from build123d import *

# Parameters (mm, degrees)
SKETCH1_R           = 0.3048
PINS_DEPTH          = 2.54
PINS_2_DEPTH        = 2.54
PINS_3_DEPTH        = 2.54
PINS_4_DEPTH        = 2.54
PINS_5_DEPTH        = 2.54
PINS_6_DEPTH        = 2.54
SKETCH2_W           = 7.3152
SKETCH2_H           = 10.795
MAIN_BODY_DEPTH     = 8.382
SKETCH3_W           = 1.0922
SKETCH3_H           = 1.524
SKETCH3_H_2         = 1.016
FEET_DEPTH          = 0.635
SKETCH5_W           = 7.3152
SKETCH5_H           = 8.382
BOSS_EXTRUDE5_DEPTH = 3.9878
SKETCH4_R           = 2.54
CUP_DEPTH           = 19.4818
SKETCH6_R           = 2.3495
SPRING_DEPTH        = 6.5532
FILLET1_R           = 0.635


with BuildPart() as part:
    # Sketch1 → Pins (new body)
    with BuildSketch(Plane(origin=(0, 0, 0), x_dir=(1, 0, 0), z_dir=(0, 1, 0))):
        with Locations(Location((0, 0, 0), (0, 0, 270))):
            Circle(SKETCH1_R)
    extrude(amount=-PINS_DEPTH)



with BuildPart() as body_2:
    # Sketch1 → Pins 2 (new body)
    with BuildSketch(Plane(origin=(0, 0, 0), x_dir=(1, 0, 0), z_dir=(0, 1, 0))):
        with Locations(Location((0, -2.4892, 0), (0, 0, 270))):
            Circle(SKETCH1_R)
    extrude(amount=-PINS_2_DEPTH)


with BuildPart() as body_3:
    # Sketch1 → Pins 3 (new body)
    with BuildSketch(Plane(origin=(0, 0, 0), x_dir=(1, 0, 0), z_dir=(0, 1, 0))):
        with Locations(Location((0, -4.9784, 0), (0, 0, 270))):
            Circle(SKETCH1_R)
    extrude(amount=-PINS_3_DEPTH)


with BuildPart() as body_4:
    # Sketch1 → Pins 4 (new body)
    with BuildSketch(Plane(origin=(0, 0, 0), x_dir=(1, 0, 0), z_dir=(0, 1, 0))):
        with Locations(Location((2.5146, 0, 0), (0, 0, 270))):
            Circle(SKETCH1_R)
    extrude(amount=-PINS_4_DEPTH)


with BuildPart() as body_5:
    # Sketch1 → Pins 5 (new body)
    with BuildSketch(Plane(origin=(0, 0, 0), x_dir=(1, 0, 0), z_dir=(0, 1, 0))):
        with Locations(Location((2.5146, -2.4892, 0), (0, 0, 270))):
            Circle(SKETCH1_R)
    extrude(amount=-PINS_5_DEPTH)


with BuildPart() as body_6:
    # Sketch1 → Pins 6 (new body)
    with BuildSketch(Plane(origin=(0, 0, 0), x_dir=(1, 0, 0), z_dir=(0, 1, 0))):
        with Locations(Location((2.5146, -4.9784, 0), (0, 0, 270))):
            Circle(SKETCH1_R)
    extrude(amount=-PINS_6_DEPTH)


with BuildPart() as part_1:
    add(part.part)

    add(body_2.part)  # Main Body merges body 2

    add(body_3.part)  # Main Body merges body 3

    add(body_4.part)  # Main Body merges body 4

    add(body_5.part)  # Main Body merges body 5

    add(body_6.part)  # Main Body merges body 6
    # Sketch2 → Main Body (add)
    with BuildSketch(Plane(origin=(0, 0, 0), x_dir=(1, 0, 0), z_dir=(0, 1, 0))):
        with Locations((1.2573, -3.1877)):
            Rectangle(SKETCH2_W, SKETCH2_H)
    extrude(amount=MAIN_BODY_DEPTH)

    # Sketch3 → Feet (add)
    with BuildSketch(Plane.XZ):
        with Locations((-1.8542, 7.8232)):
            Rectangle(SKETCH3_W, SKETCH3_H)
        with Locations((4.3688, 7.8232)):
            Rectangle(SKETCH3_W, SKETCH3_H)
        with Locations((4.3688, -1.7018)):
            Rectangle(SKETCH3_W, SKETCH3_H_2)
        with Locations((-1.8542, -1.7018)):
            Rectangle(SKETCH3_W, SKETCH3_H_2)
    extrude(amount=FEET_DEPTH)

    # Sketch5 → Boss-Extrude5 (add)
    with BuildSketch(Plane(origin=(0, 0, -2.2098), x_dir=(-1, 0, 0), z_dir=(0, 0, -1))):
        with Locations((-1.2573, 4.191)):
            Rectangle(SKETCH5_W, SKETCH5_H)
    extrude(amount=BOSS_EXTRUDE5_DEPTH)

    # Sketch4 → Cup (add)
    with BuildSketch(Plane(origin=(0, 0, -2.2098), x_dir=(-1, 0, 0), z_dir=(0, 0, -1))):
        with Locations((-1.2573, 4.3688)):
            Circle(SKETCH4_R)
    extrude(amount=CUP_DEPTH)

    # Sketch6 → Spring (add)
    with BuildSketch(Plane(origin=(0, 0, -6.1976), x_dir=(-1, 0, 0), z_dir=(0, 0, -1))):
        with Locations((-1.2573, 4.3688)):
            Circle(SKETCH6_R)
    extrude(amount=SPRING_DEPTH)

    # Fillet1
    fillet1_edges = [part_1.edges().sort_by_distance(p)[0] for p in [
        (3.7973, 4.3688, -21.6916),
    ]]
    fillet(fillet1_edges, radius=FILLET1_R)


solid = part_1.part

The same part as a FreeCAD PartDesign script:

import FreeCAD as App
import Part
import Sketcher
from FreeCAD import Vector
Q = App.Units.Quantity


def edges_at(feature, points):
    """Names of the edges that pass closest to the given points."""
    edges = feature.Shape.Edges
    near = lambda p: min(range(len(edges)), key=lambda i: edges[i].distToShape(Part.Vertex(*p))[0])
    return sorted({f"Edge{near(p) + 1}" for p in points})


def add_polygon(sketch, points):
    """Adds a closed chain of lines whose ends are joined by coincident constraints."""
    first, n = sketch.GeometryCount, len(points)
    for a, b in zip(points, points[1:] + points[:1]):
        sketch.addGeometry(Part.LineSegment(App.Vector(*a, 0), App.Vector(*b, 0)), False)
    for i in range(n):
        sketch.addConstraint(Sketcher.Constraint("Coincident", first + i, 2, first + (i + 1) % n, 1))

doc = App.newDocument("Part")
body = doc.addObject("PartDesign::Body", "Body")

# Sketch on XZ plane
sketch1 = body.newObject("Sketcher::SketchObject", "Sketch")
sketch1.AttachmentSupport = (doc.getObject("XZ_Plane"), [""])
sketch1.MapMode = "FlatFace"
sketch1.addGeometry(Part.Circle(Vector(0, 0, 0), Vector(0, 0, 1), 0.3048), False)
sketch1.addConstraint(Sketcher.Constraint("Coincident", 0, 3, -1, 1))
sketch1.addConstraint(Sketcher.Constraint("Diameter", 0, Q("0.024 in")))
pad1 = body.newObject("PartDesign::Pad", "Pad")
pad1.Profile = sketch1
pad1.Length = Q("0.1 in")
body2 = doc.addObject("PartDesign::Body", "Body001")

# Sketch on XZ plane
sketch2 = body2.newObject("Sketcher::SketchObject", "Sketch001")
sketch2.AttachmentSupport = (doc.getObject("XZ_Plane001"), [""])
sketch2.MapMode = "FlatFace"
sketch2.addGeometry(Part.Circle(Vector(0, 2.4892, 0), Vector(0, 0, 1), 0.3048), False)
sketch2.addConstraint(Sketcher.Constraint("PointOnObject", 0, 3, -2))
sketch2.addConstraint(Sketcher.Constraint("Diameter", 0, Q("0.024 in")))
sketch2.addConstraint(Sketcher.Constraint("DistanceY", -1, 1, 0, 3, Q("0.098 in")))
pad2 = body2.newObject("PartDesign::Pad", "Pad001")
pad2.Profile = sketch2
pad2.Length = Q("0.1 in")
body3 = doc.addObject("PartDesign::Body", "Body002")

# Sketch on XZ plane
sketch3 = body3.newObject("Sketcher::SketchObject", "Sketch002")
sketch3.AttachmentSupport = (doc.getObject("XZ_Plane002"), [""])
sketch3.MapMode = "FlatFace"
sketch3.addGeometry(Part.Circle(Vector(0, 4.9784, 0), Vector(0, 0, 1), 0.3048), False)
sketch3.addConstraint(Sketcher.Constraint("PointOnObject", 0, 3, -2))
sketch3.addConstraint(Sketcher.Constraint("Diameter", 0, Q("0.024 in")))
sketch3.addConstraint(Sketcher.Constraint("DistanceY", -1, 1, 0, 3, Q("0.196 in")))
pad3 = body3.newObject("PartDesign::Pad", "Pad002")
pad3.Profile = sketch3
pad3.Length = Q("0.1 in")
body4 = doc.addObject("PartDesign::Body", "Body003")

# Sketch on XZ plane
sketch4 = body4.newObject("Sketcher::SketchObject", "Sketch003")
sketch4.AttachmentSupport = (doc.getObject("XZ_Plane003"), [""])
sketch4.MapMode = "FlatFace"
sketch4.addGeometry(Part.Circle(Vector(2.5146, 0, 0), Vector(0, 0, 1), 0.3048), False)
sketch4.addConstraint(Sketcher.Constraint("PointOnObject", 0, 3, -1))
sketch4.addConstraint(Sketcher.Constraint("Diameter", 0, Q("0.024 in")))
sketch4.addConstraint(Sketcher.Constraint("DistanceX", -1, 1, 0, 3, Q("0.099 in")))
pad4 = body4.newObject("PartDesign::Pad", "Pad003")
pad4.Profile = sketch4
pad4.Length = Q("0.1 in")
body5 = doc.addObject("PartDesign::Body", "Body004")

# Sketch on XZ plane
sketch5 = body5.newObject("Sketcher::SketchObject", "Sketch004")
sketch5.AttachmentSupport = (doc.getObject("XZ_Plane004"), [""])
sketch5.MapMode = "FlatFace"
sketch5.addGeometry(Part.Circle(Vector(2.5146, 2.4892, 0), Vector(0, 0, 1), 0.3048), False)
sketch5.addConstraint(Sketcher.Constraint("Diameter", 0, Q("0.024 in")))
sketch5.addConstraint(Sketcher.Constraint("DistanceX", -1, 1, 0, 3, Q("0.099 in")))
sketch5.addConstraint(Sketcher.Constraint("DistanceY", -1, 1, 0, 3, Q("0.098 in")))
pad5 = body5.newObject("PartDesign::Pad", "Pad004")
pad5.Profile = sketch5
pad5.Length = Q("0.1 in")
body6 = doc.addObject("PartDesign::Body", "Body005")

# Sketch on XZ plane
sketch6 = body6.newObject("Sketcher::SketchObject", "Sketch005")
sketch6.AttachmentSupport = (doc.getObject("XZ_Plane005"), [""])
sketch6.MapMode = "FlatFace"
sketch6.addGeometry(Part.Circle(Vector(2.5146, 4.9784, 0), Vector(0, 0, 1), 0.3048), False)
sketch6.addConstraint(Sketcher.Constraint("Diameter", 0, Q("0.024 in")))
sketch6.addConstraint(Sketcher.Constraint("DistanceX", -1, 1, 0, 3, Q("0.099 in")))
sketch6.addConstraint(Sketcher.Constraint("DistanceY", -1, 1, 0, 3, Q("0.196 in")))
pad6 = body6.newObject("PartDesign::Pad", "Pad005")
pad6.Profile = sketch6
pad6.Length = Q("0.1 in")
body.AllowCompound = True
doc.recompute()

boolean = body.newObject("PartDesign::Boolean", "Boolean")
boolean.Type = "Fuse"
boolean.addObjects([body2])
doc.recompute()

boolean2 = body.newObject("PartDesign::Boolean", "Boolean001")
boolean2.Type = "Fuse"
boolean2.addObjects([body3])
doc.recompute()

boolean3 = body.newObject("PartDesign::Boolean", "Boolean002")
boolean3.Type = "Fuse"
boolean3.addObjects([body4])
doc.recompute()

boolean4 = body.newObject("PartDesign::Boolean", "Boolean003")
boolean4.Type = "Fuse"
boolean4.addObjects([body5])
doc.recompute()

boolean5 = body.newObject("PartDesign::Boolean", "Boolean004")
boolean5.Type = "Fuse"
boolean5.addObjects([body6])

# Sketch on XZ plane
sketch7 = body.newObject("Sketcher::SketchObject", "Sketch006")
sketch7.AttachmentSupport = (doc.getObject("XZ_Plane"), [""])
sketch7.MapMode = "FlatFace"
add_polygon(sketch7, [(-2.4003, -2.2098), (-2.4003, 8.5852), (4.9149, 8.5852), (4.9149, -2.2098)])  # lines 0-3
sketch7.addConstraint(Sketcher.Constraint("Vertical", 0))
sketch7.addConstraint(Sketcher.Constraint("Horizontal", 1))
sketch7.addConstraint(Sketcher.Constraint("Vertical", 2))
sketch7.addConstraint(Sketcher.Constraint("Horizontal", 3))
sketch7.addConstraint(Sketcher.Constraint("DistanceX", 1, 1, 1, 2, Q("0.288 in")))
sketch7.addConstraint(Sketcher.Constraint("DistanceY", 0, 1, 0, 2, Q("0.425 in")))
sketch7.addConstraint(Sketcher.Constraint("DistanceY", -1, 1, 0, 2, Q("0.338 in")))
sketch7.addConstraint(Sketcher.Constraint("DistanceX", 0, 2, -1, 1, Q("0.0945 in")))
pad7 = body.newObject("PartDesign::Pad", "Pad006")
pad7.Profile = sketch7
pad7.Length = Q("0.33 in")
pad7.Reversed = True

# Sketch on XZ plane
sketch8 = body.newObject("Sketcher::SketchObject", "Sketch007")
sketch8.AttachmentSupport = (doc.getObject("XZ_Plane"), [""])
sketch8.MapMode = "FlatFace"
add_polygon(sketch8, [(-2.4003, 8.5852), (-2.4003, 7.0612), (-1.3081, 7.0612), (-1.3081, 8.5852)])  # lines 0-3
add_polygon(sketch8, [(3.8227, 8.5852), (3.8227, 7.0612), (4.9149, 7.0612), (4.9149, 8.5852)])  # lines 4-7
add_polygon(sketch8, [(3.8227, -1.1938), (3.8227, -2.2098), (4.9149, -2.2098), (4.9149, -1.1938)])  # lines 8-11
add_polygon(sketch8, [(-2.4003, -1.1938), (-2.4003, -2.2098), (-1.3081, -2.2098), (-1.3081, -1.1938)])  # lines 12-15
sketch8.addConstraint(Sketcher.Constraint("Vertical", 0))
sketch8.addConstraint(Sketcher.Constraint("Horizontal", 1))
sketch8.addConstraint(Sketcher.Constraint("Vertical", 2))
sketch8.addConstraint(Sketcher.Constraint("Horizontal", 3))
sketch8.addConstraint(Sketcher.Constraint("Vertical", 4))
sketch8.addConstraint(Sketcher.Constraint("Horizontal", 5))
sketch8.addConstraint(Sketcher.Constraint("Vertical", 6))
sketch8.addConstraint(Sketcher.Constraint("Horizontal", 7))
sketch8.addConstraint(Sketcher.Constraint("Vertical", 8))
sketch8.addConstraint(Sketcher.Constraint("Horizontal", 9))
sketch8.addConstraint(Sketcher.Constraint("Vertical", 10))
sketch8.addConstraint(Sketcher.Constraint("Horizontal", 11))
sketch8.addConstraint(Sketcher.Constraint("Vertical", 12))
sketch8.addConstraint(Sketcher.Constraint("Horizontal", 13))
sketch8.addConstraint(Sketcher.Constraint("Vertical", 14))
sketch8.addConstraint(Sketcher.Constraint("Horizontal", 15))
sketch8.addConstraint(Sketcher.Constraint("Horizontal", 1, 2, 4, 2))
sketch8.addConstraint(Sketcher.Constraint("Horizontal", 3, 2, 6, 2))
sketch8.addConstraint(Sketcher.Constraint("Horizontal", 9, 2, 12, 2))
sketch8.addConstraint(Sketcher.Constraint("Horizontal", 11, 2, 14, 2))
sketch8.addConstraint(Sketcher.Constraint("Vertical", 7, 2, 8, 2))
sketch8.addConstraint(Sketcher.Constraint("Vertical", 6, 2, 9, 2))
sketch8.addConstraint(Sketcher.Constraint("Vertical", 3, 2, 12, 2))
sketch8.addConstraint(Sketcher.Constraint("Vertical", 2, 2, 13, 2))
sketch8.addConstraint(Sketcher.Constraint("Equal", 3, 5))
sketch8.addConstraint(Sketcher.Constraint("DistanceY", 0, 2, 0, 1, Q("0.06 in")))
sketch8.addConstraint(Sketcher.Constraint("DistanceY", 8, 2, 8, 1, Q("0.04 in")))
sketch8.addConstraint(Sketcher.Constraint("DistanceX", 1, 1, 1, 2, Q("0.043 in")))
sketch8.addConstraint(Sketcher.Constraint("DistanceY", -1, 1, 0, 2, Q("0.278 in")))
sketch8.addConstraint(Sketcher.Constraint("DistanceY", 8, 2, -1, 1, Q("0.087 in")))
sketch8.addConstraint(Sketcher.Constraint("DistanceX", 1, 2, 4, 2, Q("0.202 in")))
sketch8.addConstraint(Sketcher.Constraint("DistanceX", 0, 2, -1, 1, Q("0.0945 in")))
pad8 = body.newObject("PartDesign::Pad", "Pad007")
pad8.Profile = sketch8
pad8.Length = Q("0.025 in")

# Sketch on XY plane
sketch9 = body.newObject("Sketcher::SketchObject", "Sketch008")
sketch9.AttachmentSupport = (doc.getObject("XY_Plane"), [""])
sketch9.MapMode = "FlatFace"
sketch9.AttachmentOffset = App.Placement(Vector(0, 0, -0.087 * 25.4), App.Rotation())
add_polygon(sketch9, [(4.9149, 8.382), (4.9149, 0), (-2.4003, 0), (-2.4003, 8.382)])  # lines 0-3
sketch9.addConstraint(Sketcher.Constraint("Vertical", 0))
sketch9.addConstraint(Sketcher.Constraint("Horizontal", 1))
sketch9.addConstraint(Sketcher.Constraint("Vertical", 2))
sketch9.addConstraint(Sketcher.Constraint("Horizontal", 3))
sketch9.addConstraint(Sketcher.Constraint("PointOnObject", 0, 2, -1))
sketch9.addConstraint(Sketcher.Constraint("DistanceY", 0, 2, 0, 1, Q("0.33 in")))
sketch9.addConstraint(Sketcher.Constraint("DistanceX", 1, 2, 1, 1, Q("0.288 in")))
sketch9.addConstraint(Sketcher.Constraint("DistanceX", -1, 1, 0, 2, Q("0.1935 in")))
pad9 = body.newObject("PartDesign::Pad", "Pad008")
pad9.Profile = sketch9
pad9.Length = Q("0.157 in")
pad9.Reversed = True

# Sketch on XY plane
sketch10 = body.newObject("Sketcher::SketchObject", "Sketch009")
sketch10.AttachmentSupport = (doc.getObject("XY_Plane"), [""])
sketch10.MapMode = "FlatFace"
sketch10.AttachmentOffset = App.Placement(Vector(0, 0, -0.087 * 25.4), App.Rotation())
sketch10.addGeometry(Part.Circle(Vector(1.2573, 4.3688, 0), Vector(0, 0, 1), 2.54), False)
sketch10.addConstraint(Sketcher.Constraint("Diameter", 0, Q("0.2 in")))
sketch10.addConstraint(Sketcher.Constraint("DistanceY", -1, 1, 0, 3, Q("0.172 in")))
sketch10.addConstraint(Sketcher.Constraint("DistanceX", -1, 1, 0, 3, Q("0.0495 in")))
pad10 = body.newObject("PartDesign::Pad", "Pad009")
pad10.Profile = sketch10
pad10.Length = Q("0.767 in")
pad10.Reversed = True

# Sketch on XY plane
sketch11 = body.newObject("Sketcher::SketchObject", "Sketch010")
sketch11.AttachmentSupport = (doc.getObject("XY_Plane"), [""])
sketch11.MapMode = "FlatFace"
sketch11.AttachmentOffset = App.Placement(Vector(0, 0, -0.244 * 25.4), App.Rotation())
sketch11.addGeometry(Part.Circle(Vector(1.2573, 4.3688, 0), Vector(0, 0, 1), 2.3495), False)
sketch11.addConstraint(Sketcher.Constraint("Diameter", 0, Q("0.185 in")))
sketch11.addConstraint(Sketcher.Constraint("DistanceY", -1, 1, 0, 3, Q("0.172 in")))
sketch11.addConstraint(Sketcher.Constraint("DistanceX", -1, 1, 0, 3, Q("0.0495 in")))
pad11 = body.newObject("PartDesign::Pad", "Pad010")
pad11.Profile = sketch11
pad11.Length = Q("0.258 in")
pad11.Reversed = True
doc.recompute()

fillet = body.newObject("PartDesign::Fillet", "Fillet")
fillet.Base = (pad11, edges_at(pad11, [(3.797, 4.369, -21.692)]))
fillet.Radius = Q("0.025 in")

doc.recompute()
